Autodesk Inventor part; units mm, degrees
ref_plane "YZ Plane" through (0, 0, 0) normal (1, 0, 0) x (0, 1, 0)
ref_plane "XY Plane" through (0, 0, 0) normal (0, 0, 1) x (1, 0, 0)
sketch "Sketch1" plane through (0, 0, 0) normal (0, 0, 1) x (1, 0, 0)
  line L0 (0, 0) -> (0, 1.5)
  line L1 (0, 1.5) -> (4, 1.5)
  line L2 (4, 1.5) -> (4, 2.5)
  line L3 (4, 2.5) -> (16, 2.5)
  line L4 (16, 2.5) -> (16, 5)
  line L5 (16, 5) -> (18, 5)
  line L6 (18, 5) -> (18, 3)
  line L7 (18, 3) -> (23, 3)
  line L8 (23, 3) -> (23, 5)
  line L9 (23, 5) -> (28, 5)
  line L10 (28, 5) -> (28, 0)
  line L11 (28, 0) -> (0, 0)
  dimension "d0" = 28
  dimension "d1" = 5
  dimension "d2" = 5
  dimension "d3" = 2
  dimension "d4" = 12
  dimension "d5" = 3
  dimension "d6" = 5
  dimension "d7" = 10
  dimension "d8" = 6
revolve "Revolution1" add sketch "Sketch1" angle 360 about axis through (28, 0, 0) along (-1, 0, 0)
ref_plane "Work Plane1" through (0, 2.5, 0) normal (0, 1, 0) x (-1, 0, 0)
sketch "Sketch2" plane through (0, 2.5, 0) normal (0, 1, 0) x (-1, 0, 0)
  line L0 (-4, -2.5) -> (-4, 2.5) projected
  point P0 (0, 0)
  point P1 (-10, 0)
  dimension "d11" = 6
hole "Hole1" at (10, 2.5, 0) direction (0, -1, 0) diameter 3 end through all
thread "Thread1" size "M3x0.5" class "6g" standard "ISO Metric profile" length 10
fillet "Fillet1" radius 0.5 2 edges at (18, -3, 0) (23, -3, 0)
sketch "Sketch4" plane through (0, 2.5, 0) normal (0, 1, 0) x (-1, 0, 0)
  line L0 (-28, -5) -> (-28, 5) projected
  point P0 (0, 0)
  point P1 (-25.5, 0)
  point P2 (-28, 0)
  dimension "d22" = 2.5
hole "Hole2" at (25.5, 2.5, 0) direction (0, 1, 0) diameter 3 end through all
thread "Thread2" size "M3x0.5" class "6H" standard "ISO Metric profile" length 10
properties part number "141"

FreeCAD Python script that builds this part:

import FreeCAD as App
import Part
import Sketcher

V = App.Vector


def edges_at(feature, points):
    """Names of the edges that pass closest to the given points."""
    edges = feature.Shape.Edges
    near = lambda p: min(range(len(edges)), key=lambda i: edges[i].distToShape(Part.Vertex(*p))[0])
    return sorted({f"Edge{near(p) + 1}" for p in points})


def add_polygon(sketch, points):
    """Adds a closed chain of lines whose ends are joined by coincident constraints."""
    first, n = sketch.GeometryCount, len(points)
    for a, b in zip(points, points[1:] + points[:1]):
        sketch.addGeometry(Part.LineSegment(App.Vector(*a, 0), App.Vector(*b, 0)), False)
    for i in range(n):
        sketch.addConstraint(Sketcher.Constraint("Coincident", first + i, 2, first + (i + 1) % n, 1))

doc = App.newDocument("Part")
body = doc.addObject("PartDesign::Body", "Body")

# Sketch on XY plane
sketch1 = body.newObject("Sketcher::SketchObject", "Sketch")
sketch1.AttachmentSupport = (doc.getObject("XY_Plane"), [""])
sketch1.MapMode = "FlatFace"
add_polygon(sketch1, [(0, 1.5), (0, 0), (28, 0), (28, 5), (23, 5), (23, 3), (18, 3), (18, 5), (16, 5), (16, 2.5), (4, 2.5), (4, 1.5)])  # lines 0-11
sketch1.addConstraint(Sketcher.Constraint("Vertical", 0))
sketch1.addConstraint(Sketcher.Constraint("Horizontal", 1))
sketch1.addConstraint(Sketcher.Constraint("Vertical", 2))
sketch1.addConstraint(Sketcher.Constraint("Horizontal", 3))
sketch1.addConstraint(Sketcher.Constraint("Vertical", 4))
sketch1.addConstraint(Sketcher.Constraint("Horizontal", 5))
sketch1.addConstraint(Sketcher.Constraint("Vertical", 6))
sketch1.addConstraint(Sketcher.Constraint("Horizontal", 7))
sketch1.addConstraint(Sketcher.Constraint("Vertical", 8))
sketch1.addConstraint(Sketcher.Constraint("Horizontal", 9))
sketch1.addConstraint(Sketcher.Constraint("Vertical", 10))
sketch1.addConstraint(Sketcher.Constraint("Horizontal", 11))
sketch1.addConstraint(Sketcher.Constraint("Coincident", 0, 2, -1, 1))
sketch1.addConstraint(Sketcher.Constraint("Horizontal", 3, 2, 6, 2))
sketch1.addConstraint(Sketcher.Constraint("Equal", 3, 5))
sketch1.addConstraint(Sketcher.Constraint("Equal", 5, 2))
sketch1.addConstraint(Sketcher.Constraint("Equal", 7, 4))
sketch1.addConstraint(Sketcher.Constraint("DistanceX", 1, 1, 1, 2, 28.0))
sketch1.addConstraint(Sketcher.Constraint("DistanceX", 3, 2, 3, 1, 5.0))
sketch1.addConstraint(Sketcher.Constraint("DistanceX", 7, 2, 7, 1, 2.0))
sketch1.addConstraint(Sketcher.Constraint("DistanceX", 9, 2, 9, 1, 12.0))
sketch1.addConstraint(Sketcher.Constraint("DistanceY", 10, 2, 10, 1, 1.0))
sketch1.addConstraint(Sketcher.Constraint("DistanceY", 0, 2, 0, 1, 1.5))
revolution = body.newObject("PartDesign::Revolution", "Revolution")
revolution.Profile = sketch1
revolution.ReferenceAxis = (sketch1, ["H_Axis"])
revolution.Angle = 360

# Sketch on XZ plane
sketch2 = body.newObject("Sketcher::SketchObject", "Sketch001")
sketch2.AttachmentSupport = (doc.getObject("XZ_Plane"), [""])
sketch2.MapMode = "FlatFace"
sketch2.AttachmentOffset = App.Placement(V(0, 0, -2.5), App.Rotation())
sketch2.addGeometry(Part.Circle(V(10, 0, 0), V(0, 0, 1), 1.5), False)
sketch2.addConstraint(Sketcher.Constraint("PointOnObject", 0, 3, -1))
sketch2.addConstraint(Sketcher.Constraint("Diameter", 0, 3.0))
sketch2.addConstraint(Sketcher.Constraint("DistanceX", -1, 1, 0, 3, 10.0))
doc.recompute()
hole = body.newObject("PartDesign::Hole", "Hole")
hole.Profile = sketch2
hole.ThreadType = "None"
hole.Diameter = 3
hole.DepthType = "ThroughAll"
hole.Reversed = True
doc.recompute()

fillet = body.newObject("PartDesign::Fillet", "Fillet")
fillet.Base = (hole, edges_at(hole, [(18, -3, 0), (23, -3, 0)]))
fillet.Radius = 0.5

# Sketch on XZ plane
sketch3 = body.newObject("Sketcher::SketchObject", "Sketch002")
sketch3.AttachmentSupport = (doc.getObject("XZ_Plane"), [""])
sketch3.MapMode = "FlatFace"
sketch3.AttachmentOffset = App.Placement(V(0, 0, -2.5), App.Rotation())
sketch3.addGeometry(Part.Circle(V(25.5, 0, 0), V(0, 0, 1), 1.5), False)
sketch3.addConstraint(Sketcher.Constraint("PointOnObject", 0, 3, -1))
sketch3.addConstraint(Sketcher.Constraint("Diameter", 0, 3.0))
sketch3.addConstraint(Sketcher.Constraint("DistanceX", -1, 1, 0, 3, 25.5))
doc.recompute()
hole2 = body.newObject("PartDesign::Hole", "Hole001")
hole2.Profile = sketch3
hole2.ThreadType = "None"
hole2.Diameter = 3
hole2.DepthType = "ThroughAll"

doc.recompute()
